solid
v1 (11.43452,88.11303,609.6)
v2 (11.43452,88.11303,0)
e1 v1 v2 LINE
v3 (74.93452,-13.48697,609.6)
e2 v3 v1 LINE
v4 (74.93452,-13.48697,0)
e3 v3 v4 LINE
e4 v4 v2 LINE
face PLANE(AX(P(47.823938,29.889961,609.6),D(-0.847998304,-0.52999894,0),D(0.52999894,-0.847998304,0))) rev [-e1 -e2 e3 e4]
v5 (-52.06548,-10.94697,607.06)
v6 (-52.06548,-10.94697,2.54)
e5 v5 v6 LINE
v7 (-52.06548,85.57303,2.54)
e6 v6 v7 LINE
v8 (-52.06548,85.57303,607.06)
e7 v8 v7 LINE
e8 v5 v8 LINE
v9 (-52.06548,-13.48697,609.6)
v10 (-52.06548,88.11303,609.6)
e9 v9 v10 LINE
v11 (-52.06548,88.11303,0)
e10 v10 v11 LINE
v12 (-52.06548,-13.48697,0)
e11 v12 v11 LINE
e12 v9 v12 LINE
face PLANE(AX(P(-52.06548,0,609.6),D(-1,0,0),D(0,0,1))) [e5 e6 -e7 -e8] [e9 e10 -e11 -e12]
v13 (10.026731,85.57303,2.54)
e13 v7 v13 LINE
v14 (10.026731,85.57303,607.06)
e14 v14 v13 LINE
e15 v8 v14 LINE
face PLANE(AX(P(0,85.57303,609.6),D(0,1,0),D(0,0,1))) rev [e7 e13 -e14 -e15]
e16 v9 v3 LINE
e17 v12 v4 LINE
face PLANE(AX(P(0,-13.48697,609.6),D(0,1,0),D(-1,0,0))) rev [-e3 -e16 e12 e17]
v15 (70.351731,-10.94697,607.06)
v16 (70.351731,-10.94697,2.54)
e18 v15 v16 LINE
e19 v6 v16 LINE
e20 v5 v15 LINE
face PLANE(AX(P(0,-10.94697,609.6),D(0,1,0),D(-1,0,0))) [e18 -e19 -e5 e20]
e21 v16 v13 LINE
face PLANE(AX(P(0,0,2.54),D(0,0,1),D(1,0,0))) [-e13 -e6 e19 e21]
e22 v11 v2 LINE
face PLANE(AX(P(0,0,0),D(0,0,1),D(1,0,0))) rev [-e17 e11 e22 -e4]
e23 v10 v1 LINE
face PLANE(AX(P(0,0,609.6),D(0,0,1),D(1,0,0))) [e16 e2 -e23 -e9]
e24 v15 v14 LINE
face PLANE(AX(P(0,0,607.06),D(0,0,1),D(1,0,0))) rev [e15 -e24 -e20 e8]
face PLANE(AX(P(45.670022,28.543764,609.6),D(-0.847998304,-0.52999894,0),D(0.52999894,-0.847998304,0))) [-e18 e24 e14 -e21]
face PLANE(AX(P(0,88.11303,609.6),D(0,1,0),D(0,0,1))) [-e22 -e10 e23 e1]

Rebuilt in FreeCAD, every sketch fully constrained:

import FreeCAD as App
import Part
import Sketcher
from FreeCAD import Vector
Q = App.Units.Quantity


def faces_at(feature, points):
    """Names of the faces that lie closest to the given points."""
    faces = feature.Shape.Faces
    near = lambda p: min(range(len(faces)), key=lambda i: faces[i].distToShape(Part.Vertex(*p))[0])
    return sorted({f"Face{near(p) + 1}" for p in points})

doc = App.newDocument("Part")
body = doc.addObject("PartDesign::Body", "Body")

sketch1 = doc.addObject("Sketcher::SketchObject", "Sketch")
body.addObject(sketch1)
sketch1.AttachmentSupport = (doc.XY_Plane, [""])
sketch1.MapMode = "FlatFace"
sketch1.addGeometry(Part.LineSegment(Vector(-52, -13, 0), Vector(75, -13, 0)), False)
sketch1.addGeometry(Part.LineSegment(Vector(75, -13, 0), Vector(11, 88, 0)), False)
sketch1.addGeometry(Part.LineSegment(Vector(11, 88, 0), Vector(-52, 88, 0)), False)
sketch1.addGeometry(Part.LineSegment(Vector(-52, 88, 0), Vector(-52, -13, 0)), False)
sketch1.addConstraint(Sketcher.Constraint("Coincident", 0, 2, 1, 1))
sketch1.addConstraint(Sketcher.Constraint("Coincident", 1, 2, 2, 1))
sketch1.addConstraint(Sketcher.Constraint("Coincident", 2, 2, 3, 1))
sketch1.addConstraint(Sketcher.Constraint("Coincident", 3, 2, 0, 1))
sketch1.addConstraint(Sketcher.Constraint("Horizontal", 0))
sketch1.addConstraint(Sketcher.Constraint("Horizontal", 2))
sketch1.addConstraint(Sketcher.Constraint("Vertical", 3))
sketch1.addConstraint(Sketcher.Constraint("DistanceX", 0, 1, 0, 2, Q("5 in")))
sketch1.addConstraint(Sketcher.Constraint("DistanceY", 3, 2, 3, 1, Q("4 in")))
sketch1.addConstraint(Sketcher.Constraint("DistanceX", 2, 2, 2, 1, Q("2.5 in")))
sketch1.addConstraint(Sketcher.Constraint("DistanceX", -1, 1, 0, 2, 74.93452))
sketch1.addConstraint(Sketcher.Constraint("DistanceY", 0, 2, -1, 1, 13.48697))
pad1 = doc.addObject("PartDesign::Pad", "Pad")
body.addObject(pad1)
pad1.Profile = sketch1
pad1.Length = Q("24 in")
doc.recompute()

thickness = doc.addObject("PartDesign::Thickness", "Thickness")
body.addObject(thickness)
thickness.Base = (pad1, faces_at(pad1, [(-52.065, 37.313, 304.8)]))
thickness.Value = Q("0.1 in")
thickness.Reversed = True
thickness.Join = "Intersection"

doc.recompute()
